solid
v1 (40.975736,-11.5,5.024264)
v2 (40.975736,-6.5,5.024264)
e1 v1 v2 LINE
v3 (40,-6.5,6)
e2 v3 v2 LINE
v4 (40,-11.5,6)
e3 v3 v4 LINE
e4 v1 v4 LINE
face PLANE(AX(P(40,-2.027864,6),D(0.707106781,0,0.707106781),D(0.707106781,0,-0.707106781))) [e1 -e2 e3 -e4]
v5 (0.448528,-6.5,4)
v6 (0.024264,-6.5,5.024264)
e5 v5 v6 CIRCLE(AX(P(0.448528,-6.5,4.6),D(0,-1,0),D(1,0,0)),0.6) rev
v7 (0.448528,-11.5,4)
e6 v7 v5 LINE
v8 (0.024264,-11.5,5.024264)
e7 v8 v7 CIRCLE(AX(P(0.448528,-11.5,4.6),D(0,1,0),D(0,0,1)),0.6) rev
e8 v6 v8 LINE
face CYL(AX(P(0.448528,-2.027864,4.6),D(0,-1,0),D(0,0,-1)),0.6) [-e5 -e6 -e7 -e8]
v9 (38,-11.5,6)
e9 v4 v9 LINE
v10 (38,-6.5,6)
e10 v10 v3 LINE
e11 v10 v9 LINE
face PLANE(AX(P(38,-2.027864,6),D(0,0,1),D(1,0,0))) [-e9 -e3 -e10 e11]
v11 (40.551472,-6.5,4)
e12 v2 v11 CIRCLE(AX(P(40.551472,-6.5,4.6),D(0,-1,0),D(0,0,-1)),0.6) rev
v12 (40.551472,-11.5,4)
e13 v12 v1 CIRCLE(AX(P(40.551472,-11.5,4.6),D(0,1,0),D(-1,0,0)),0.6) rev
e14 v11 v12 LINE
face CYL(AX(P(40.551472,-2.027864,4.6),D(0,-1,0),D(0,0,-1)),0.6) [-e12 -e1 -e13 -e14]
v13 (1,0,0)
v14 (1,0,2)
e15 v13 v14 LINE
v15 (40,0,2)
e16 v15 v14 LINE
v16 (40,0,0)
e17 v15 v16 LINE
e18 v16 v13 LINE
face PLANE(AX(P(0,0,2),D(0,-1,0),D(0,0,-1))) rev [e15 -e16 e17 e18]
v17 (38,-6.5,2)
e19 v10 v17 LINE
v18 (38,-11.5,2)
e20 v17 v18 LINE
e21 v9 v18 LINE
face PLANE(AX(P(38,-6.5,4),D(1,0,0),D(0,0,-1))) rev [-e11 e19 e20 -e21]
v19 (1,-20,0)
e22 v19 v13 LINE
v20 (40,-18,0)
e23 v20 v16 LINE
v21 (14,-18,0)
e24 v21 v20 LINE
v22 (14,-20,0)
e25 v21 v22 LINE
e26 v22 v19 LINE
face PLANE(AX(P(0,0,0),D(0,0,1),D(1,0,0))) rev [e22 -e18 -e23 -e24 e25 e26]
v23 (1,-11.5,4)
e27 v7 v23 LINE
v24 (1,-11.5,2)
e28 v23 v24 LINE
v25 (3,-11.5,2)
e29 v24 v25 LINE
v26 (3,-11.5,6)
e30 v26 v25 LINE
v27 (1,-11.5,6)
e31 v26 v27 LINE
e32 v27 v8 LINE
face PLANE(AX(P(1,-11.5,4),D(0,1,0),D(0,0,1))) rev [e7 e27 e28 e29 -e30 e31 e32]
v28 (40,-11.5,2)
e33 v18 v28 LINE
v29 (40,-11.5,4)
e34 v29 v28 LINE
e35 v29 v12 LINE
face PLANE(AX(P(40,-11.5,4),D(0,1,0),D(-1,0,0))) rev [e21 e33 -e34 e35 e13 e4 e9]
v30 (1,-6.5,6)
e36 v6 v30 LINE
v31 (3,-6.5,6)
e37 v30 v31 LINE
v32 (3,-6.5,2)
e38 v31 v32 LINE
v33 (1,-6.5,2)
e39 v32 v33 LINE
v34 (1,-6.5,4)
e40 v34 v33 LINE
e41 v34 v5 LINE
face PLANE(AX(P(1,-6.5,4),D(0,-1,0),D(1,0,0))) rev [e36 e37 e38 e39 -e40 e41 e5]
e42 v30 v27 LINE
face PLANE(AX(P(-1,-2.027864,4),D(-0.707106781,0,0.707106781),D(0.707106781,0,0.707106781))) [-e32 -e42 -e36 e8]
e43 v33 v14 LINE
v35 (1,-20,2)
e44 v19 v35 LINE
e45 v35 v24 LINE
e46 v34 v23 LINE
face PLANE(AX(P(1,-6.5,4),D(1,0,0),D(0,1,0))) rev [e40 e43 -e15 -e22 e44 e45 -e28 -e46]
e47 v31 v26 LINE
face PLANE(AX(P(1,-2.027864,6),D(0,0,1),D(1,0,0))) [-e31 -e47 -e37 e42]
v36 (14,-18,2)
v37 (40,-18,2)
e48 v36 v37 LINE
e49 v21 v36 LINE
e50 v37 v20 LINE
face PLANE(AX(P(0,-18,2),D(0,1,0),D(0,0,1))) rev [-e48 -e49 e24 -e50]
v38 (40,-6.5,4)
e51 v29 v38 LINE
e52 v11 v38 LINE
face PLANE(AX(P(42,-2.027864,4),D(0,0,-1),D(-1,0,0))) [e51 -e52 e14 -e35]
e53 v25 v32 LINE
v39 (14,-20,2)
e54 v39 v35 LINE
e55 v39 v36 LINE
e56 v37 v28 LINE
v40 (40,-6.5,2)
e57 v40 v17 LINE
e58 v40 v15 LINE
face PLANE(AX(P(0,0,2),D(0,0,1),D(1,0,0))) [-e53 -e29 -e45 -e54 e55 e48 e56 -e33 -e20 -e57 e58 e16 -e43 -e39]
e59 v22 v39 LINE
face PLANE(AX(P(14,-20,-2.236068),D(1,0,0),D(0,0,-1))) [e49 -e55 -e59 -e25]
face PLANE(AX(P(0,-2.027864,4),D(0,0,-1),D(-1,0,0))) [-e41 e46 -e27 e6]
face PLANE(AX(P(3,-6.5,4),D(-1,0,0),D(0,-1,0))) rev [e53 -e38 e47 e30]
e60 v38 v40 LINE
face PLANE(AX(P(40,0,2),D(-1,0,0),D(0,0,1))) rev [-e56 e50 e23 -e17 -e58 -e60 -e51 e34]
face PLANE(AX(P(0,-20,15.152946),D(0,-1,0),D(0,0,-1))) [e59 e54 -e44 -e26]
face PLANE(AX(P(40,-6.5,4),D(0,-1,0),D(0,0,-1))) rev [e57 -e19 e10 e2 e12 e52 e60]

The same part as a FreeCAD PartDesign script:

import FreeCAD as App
import Part
import Sketcher
from FreeCAD import Vector


def edges_at(feature, points):
    """Names of the edges that pass closest to the given points."""
    edges = feature.Shape.Edges
    near = lambda p: min(range(len(edges)), key=lambda i: edges[i].distToShape(Part.Vertex(*p))[0])
    return sorted({f"Edge{near(p) + 1}" for p in points})

doc = App.newDocument("Part")
body = doc.addObject("PartDesign::Body", "Body")

# Sketch on XY plane
sketch1 = doc.addObject("Sketcher::SketchObject", "Sketch")
body.addObject(sketch1)
sketch1.AttachmentSupport = (doc.XY_Plane, [""])
sketch1.MapMode = "FlatFace"
sketch1.addGeometry(Part.LineSegment(Vector(0, 0, 0), Vector(0, -18, 0)), False)
sketch1.addGeometry(Part.LineSegment(Vector(0, -18, 0), Vector(40, -18, 0)), False)
sketch1.addGeometry(Part.LineSegment(Vector(40, -18, 0), Vector(40, 0, 0)), False)
sketch1.addGeometry(Part.LineSegment(Vector(40, 0, 0), Vector(0, 0, 0)), False)
sketch1.addConstraint(Sketcher.Constraint("Coincident", 0, 2, 1, 1))
sketch1.addConstraint(Sketcher.Constraint("Coincident", 1, 2, 2, 1))
sketch1.addConstraint(Sketcher.Constraint("Coincident", 2, 2, 3, 1))
sketch1.addConstraint(Sketcher.Constraint("Coincident", 3, 2, 0, 1))
sketch1.addConstraint(Sketcher.Constraint("Vertical", 0))
sketch1.addConstraint(Sketcher.Constraint("Horizontal", 1))
sketch1.addConstraint(Sketcher.Constraint("Vertical", 2))
sketch1.addConstraint(Sketcher.Constraint("Horizontal", 3))
sketch1.addConstraint(Sketcher.Constraint("Coincident", 3, 2, -1, 1))
sketch1.addConstraint(Sketcher.Constraint("DistanceX", 1, 1, 1, 2, 40.0))
sketch1.addConstraint(Sketcher.Constraint("DistanceY", 0, 2, 0, 1, 18.0))
pad1 = doc.addObject("PartDesign::Pad", "Pad")
body.addObject(pad1)
pad1.Profile = sketch1
pad1.Length = 2

# Sketch on XY plane
sketch2 = doc.addObject("Sketcher::SketchObject", "Sketch001")
body.addObject(sketch2)
sketch2.AttachmentSupport = (doc.XY_Plane, [""])
sketch2.MapMode = "FlatFace"
sketch2.AttachmentOffset = App.Placement(Vector(0, 0, 2), App.Rotation())
sketch2.addGeometry(Part.LineSegment(Vector(1, -6.5, 0), Vector(1, -11.5, 0)), False)
sketch2.addGeometry(Part.LineSegment(Vector(1, -11.5, 0), Vector(3, -11.5, 0)), False)
sketch2.addGeometry(Part.LineSegment(Vector(3, -11.5, 0), Vector(3, -6.5, 0)), False)
sketch2.addGeometry(Part.LineSegment(Vector(3, -6.5, 0), Vector(1, -6.5, 0)), False)
sketch2.addGeometry(Part.LineSegment(Vector(38, -6.5, 0), Vector(38, -11.5, 0)), False)
sketch2.addGeometry(Part.LineSegment(Vector(38, -11.5, 0), Vector(40, -11.5, 0)), False)
sketch2.addGeometry(Part.LineSegment(Vector(40, -11.5, 0), Vector(40, -6.5, 0)), False)
sketch2.addGeometry(Part.LineSegment(Vector(40, -6.5, 0), Vector(38, -6.5, 0)), False)
sketch2.addConstraint(Sketcher.Constraint("Coincident", 0, 2, 1, 1))
sketch2.addConstraint(Sketcher.Constraint("Coincident", 1, 2, 2, 1))
sketch2.addConstraint(Sketcher.Constraint("Coincident", 2, 2, 3, 1))
sketch2.addConstraint(Sketcher.Constraint("Coincident", 3, 2, 0, 1))
sketch2.addConstraint(Sketcher.Constraint("Coincident", 4, 2, 5, 1))
sketch2.addConstraint(Sketcher.Constraint("Coincident", 5, 2, 6, 1))
sketch2.addConstraint(Sketcher.Constraint("Coincident", 6, 2, 7, 1))
sketch2.addConstraint(Sketcher.Constraint("Coincident", 7, 2, 4, 1))
sketch2.addConstraint(Sketcher.Constraint("Vertical", 0))
sketch2.addConstraint(Sketcher.Constraint("Horizontal", 1))
sketch2.addConstraint(Sketcher.Constraint("Vertical", 2))
sketch2.addConstraint(Sketcher.Constraint("Horizontal", 3))
sketch2.addConstraint(Sketcher.Constraint("Vertical", 4))
sketch2.addConstraint(Sketcher.Constraint("Horizontal", 5))
sketch2.addConstraint(Sketcher.Constraint("Vertical", 6))
sketch2.addConstraint(Sketcher.Constraint("Horizontal", 7))
sketch2.addConstraint(Sketcher.Constraint("Horizontal", 1, 2, 4, 2))
sketch2.addConstraint(Sketcher.Constraint("Horizontal", 3, 2, 6, 2))
sketch2.addConstraint(Sketcher.Constraint("Equal", 3, 5))
sketch2.addConstraint(Sketcher.Constraint("DistanceX", 1, 1, 1, 2, 2.0))
sketch2.addConstraint(Sketcher.Constraint("DistanceY", 0, 2, 0, 1, 5.0))
sketch2.addConstraint(Sketcher.Constraint("DistanceX", -1, 1, 0, 2, 1.0))
sketch2.addConstraint(Sketcher.Constraint("DistanceX", -1, 1, 4, 2, 38.0))
sketch2.addConstraint(Sketcher.Constraint("DistanceY", 0, 2, -1, 1, 11.5))
pad2 = doc.addObject("PartDesign::Pad", "Pad001")
body.addObject(pad2)
pad2.Profile = sketch2
pad2.Length = 2

# Sketch on XZ plane
sketch3 = doc.addObject("Sketcher::SketchObject", "Sketch002")
body.addObject(sketch3)
sketch3.AttachmentSupport = (doc.XZ_Plane, [""])
sketch3.MapMode = "FlatFace"
sketch3.AttachmentOffset = App.Placement(Vector(0, 0, 11.5), App.Rotation())
sketch3.addGeometry(Part.LineSegment(Vector(-1, 4, 0), Vector(3, 4, 0)), False)
sketch3.addGeometry(Part.LineSegment(Vector(3, 4, 0), Vector(3, 6, 0)), False)
sketch3.addGeometry(Part.LineSegment(Vector(3, 6, 0), Vector(1, 6, 0)), False)
sketch3.addGeometry(Part.LineSegment(Vector(1, 6, 0), Vector(-1, 4, 0)), False)
sketch3.addGeometry(Part.LineSegment(Vector(38, 6, 0), Vector(38, 4, 0)), False)
sketch3.addGeometry(Part.LineSegment(Vector(38, 4, 0), Vector(42, 4, 0)), False)
sketch3.addGeometry(Part.LineSegment(Vector(42, 4, 0), Vector(40, 6, 0)), False)
sketch3.addGeometry(Part.LineSegment(Vector(40, 6, 0), Vector(38, 6, 0)), False)
sketch3.addConstraint(Sketcher.Constraint("Coincident", 0, 2, 1, 1))
sketch3.addConstraint(Sketcher.Constraint("Coincident", 1, 2, 2, 1))
sketch3.addConstraint(Sketcher.Constraint("Coincident", 2, 2, 3, 1))
sketch3.addConstraint(Sketcher.Constraint("Coincident", 3, 2, 0, 1))
sketch3.addConstraint(Sketcher.Constraint("Coincident", 4, 2, 5, 1))
sketch3.addConstraint(Sketcher.Constraint("Coincident", 5, 2, 6, 1))
sketch3.addConstraint(Sketcher.Constraint("Coincident", 6, 2, 7, 1))
sketch3.addConstraint(Sketcher.Constraint("Coincident", 7, 2, 4, 1))
sketch3.addConstraint(Sketcher.Constraint("Horizontal", 0))
sketch3.addConstraint(Sketcher.Constraint("Vertical", 1))
sketch3.addConstraint(Sketcher.Constraint("Horizontal", 2))
sketch3.addConstraint(Sketcher.Constraint("Vertical", 4))
sketch3.addConstraint(Sketcher.Constraint("Horizontal", 5))
sketch3.addConstraint(Sketcher.Constraint("Horizontal", 7))
sketch3.addConstraint(Sketcher.Constraint("Perpendicular", 3, 6))
sketch3.addConstraint(Sketcher.Constraint("Horizontal", 3, 2, 4, 2))
sketch3.addConstraint(Sketcher.Constraint("Horizontal", 2, 2, 6, 2))
sketch3.addConstraint(Sketcher.Constraint("Equal", 0, 5))
sketch3.addConstraint(Sketcher.Constraint("Equal", 2, 7))
sketch3.addConstraint(Sketcher.Constraint("Equal", 7, 1))
sketch3.addConstraint(Sketcher.Constraint("DistanceX", 0, 1, 0, 2, 4.0))
sketch3.addConstraint(Sketcher.Constraint("DistanceX", -1, 1, 0, 2, 3.0))
sketch3.addConstraint(Sketcher.Constraint("DistanceY", -1, 1, 0, 2, 4.0))
sketch3.addConstraint(Sketcher.Constraint("DistanceX", -1, 1, 4, 2, 38.0))
pad3 = doc.addObject("PartDesign::Pad", "Pad002")
body.addObject(pad3)
pad3.Profile = sketch3
pad3.Length = 5
pad3.Reversed = True
doc.recompute()

fillet = doc.addObject("PartDesign::Fillet", "Fillet")
body.addObject(fillet)
fillet.Base = (pad3, edges_at(pad3, [(-1, -9, 4), (42, -9, 4)]))
fillet.Radius = 0.6

# Sketch on XY plane
sketch4 = doc.addObject("Sketcher::SketchObject", "Sketch003")
body.addObject(sketch4)
sketch4.AttachmentSupport = (doc.XY_Plane, [""])
sketch4.MapMode = "FlatFace"
sketch4.addGeometry(Part.LineSegment(Vector(13, -18, 0), Vector(13, -20, 0)), False)
sketch4.addGeometry(Part.LineSegment(Vector(13, -20, 0), Vector(0, -20, 0)), False)
sketch4.addGeometry(Part.LineSegment(Vector(0, -20, 0), Vector(0, -18, 0)), False)
sketch4.addGeometry(Part.LineSegment(Vector(0, -18, 0), Vector(13, -18, 0)), False)
sketch4.addConstraint(Sketcher.Constraint("Coincident", 0, 2, 1, 1))
sketch4.addConstraint(Sketcher.Constraint("Coincident", 1, 2, 2, 1))
sketch4.addConstraint(Sketcher.Constraint("Coincident", 2, 2, 3, 1))
sketch4.addConstraint(Sketcher.Constraint("Coincident", 3, 2, 0, 1))
sketch4.addConstraint(Sketcher.Constraint("Vertical", 0))
sketch4.addConstraint(Sketcher.Constraint("Horizontal", 1))
sketch4.addConstraint(Sketcher.Constraint("Vertical", 2))
sketch4.addConstraint(Sketcher.Constraint("Horizontal", 3))
sketch4.addConstraint(Sketcher.Constraint("PointOnObject", 1, 2, -2))
sketch4.addConstraint(Sketcher.Constraint("DistanceX", 1, 2, 1, 1, 13.0))
sketch4.addConstraint(Sketcher.Constraint("DistanceY", 0, 2, 0, 1, 2.0))
sketch4.addConstraint(Sketcher.Constraint("DistanceY", 0, 2, -1, 1, 20.0))
pad4 = doc.addObject("PartDesign::Pad", "Pad003")
body.addObject(pad4)
pad4.Profile = sketch4
pad4.Length = 2

# Sketch on XY plane
sketch5 = doc.addObject("Sketcher::SketchObject", "Sketch004")
body.addObject(sketch5)
sketch5.AttachmentSupport = (doc.XY_Plane, [""])
sketch5.MapMode = "FlatFace"
sketch5.AttachmentOffset = App.Placement(Vector(0, 0, 2), App.Rotation())
sketch5.addGeometry(Part.LineSegment(Vector(0, 0, 0), Vector(0, -20, 0)), False)
sketch5.addGeometry(Part.LineSegment(Vector(0, -20, 0), Vector(1, -20, 0)), False)
sketch5.addGeometry(Part.LineSegment(Vector(1, -20, 0), Vector(1, 0, 0)), False)
sketch5.addGeometry(Part.LineSegment(Vector(1, 0, 0), Vector(0, 0, 0)), False)
sketch5.addConstraint(Sketcher.Constraint("Coincident", 0, 2, 1, 1))
sketch5.addConstraint(Sketcher.Constraint("Coincident", 1, 2, 2, 1))
sketch5.addConstraint(Sketcher.Constraint("Coincident", 2, 2, 3, 1))
sketch5.addConstraint(Sketcher.Constraint("Coincident", 3, 2, 0, 1))
sketch5.addConstraint(Sketcher.Constraint("Vertical", 0))
sketch5.addConstraint(Sketcher.Constraint("Horizontal", 1))
sketch5.addConstraint(Sketcher.Constraint("Vertical", 2))
sketch5.addConstraint(Sketcher.Constraint("Horizontal", 3))
sketch5.addConstraint(Sketcher.Constraint("Coincident", 3, 2, -1, 1))
sketch5.addConstraint(Sketcher.Constraint("DistanceX", 1, 1, 1, 2, 1.0))
sketch5.addConstraint(Sketcher.Constraint("DistanceY", 0, 2, 0, 1, 20.0))
pocket1 = doc.addObject("PartDesign::Pocket", "Pocket")
body.addObject(pocket1)
pocket1.Profile = sketch5
pocket1.Length = 10

# Sketch on XY plane
sketch6 = doc.addObject("Sketcher::SketchObject", "Sketch005")
body.addObject(sketch6)
sketch6.AttachmentSupport = (doc.XY_Plane, [""])
sketch6.MapMode = "FlatFace"
sketch6.AttachmentOffset = App.Placement(Vector(0, 0, 2), App.Rotation())
sketch6.addGeometry(Part.LineSegment(Vector(13, -18, 0), Vector(13, -20, 0)), False)
sketch6.addGeometry(Part.LineSegment(Vector(13, -20, 0), Vector(14, -20, 0)), False)
sketch6.addGeometry(Part.LineSegment(Vector(14, -20, 0), Vector(14, -18, 0)), False)
sketch6.addGeometry(Part.LineSegment(Vector(14, -18, 0), Vector(13, -18, 0)), False)
sketch6.addConstraint(Sketcher.Constraint("Coincident", 0, 2, 1, 1))
sketch6.addConstraint(Sketcher.Constraint("Coincident", 1, 2, 2, 1))
sketch6.addConstraint(Sketcher.Constraint("Coincident", 2, 2, 3, 1))
sketch6.addConstraint(Sketcher.Constraint("Coincident", 3, 2, 0, 1))
sketch6.addConstraint(Sketcher.Constraint("Vertical", 0))
sketch6.addConstraint(Sketcher.Constraint("Horizontal", 1))
sketch6.addConstraint(Sketcher.Constraint("Vertical", 2))
sketch6.addConstraint(Sketcher.Constraint("Horizontal", 3))
sketch6.addConstraint(Sketcher.Constraint("DistanceX", 1, 1, 1, 2, 1.0))
sketch6.addConstraint(Sketcher.Constraint("DistanceY", 0, 2, 0, 1, 2.0))
sketch6.addConstraint(Sketcher.Constraint("DistanceX", -1, 1, 0, 2, 13.0))
sketch6.addConstraint(Sketcher.Constraint("DistanceY", 0, 2, -1, 1, 20.0))
pad5 = doc.addObject("PartDesign::Pad", "Pad004")
body.addObject(pad5)
pad5.Profile = sketch6
pad5.Length = 2
pad5.Reversed = True

doc.recompute()
